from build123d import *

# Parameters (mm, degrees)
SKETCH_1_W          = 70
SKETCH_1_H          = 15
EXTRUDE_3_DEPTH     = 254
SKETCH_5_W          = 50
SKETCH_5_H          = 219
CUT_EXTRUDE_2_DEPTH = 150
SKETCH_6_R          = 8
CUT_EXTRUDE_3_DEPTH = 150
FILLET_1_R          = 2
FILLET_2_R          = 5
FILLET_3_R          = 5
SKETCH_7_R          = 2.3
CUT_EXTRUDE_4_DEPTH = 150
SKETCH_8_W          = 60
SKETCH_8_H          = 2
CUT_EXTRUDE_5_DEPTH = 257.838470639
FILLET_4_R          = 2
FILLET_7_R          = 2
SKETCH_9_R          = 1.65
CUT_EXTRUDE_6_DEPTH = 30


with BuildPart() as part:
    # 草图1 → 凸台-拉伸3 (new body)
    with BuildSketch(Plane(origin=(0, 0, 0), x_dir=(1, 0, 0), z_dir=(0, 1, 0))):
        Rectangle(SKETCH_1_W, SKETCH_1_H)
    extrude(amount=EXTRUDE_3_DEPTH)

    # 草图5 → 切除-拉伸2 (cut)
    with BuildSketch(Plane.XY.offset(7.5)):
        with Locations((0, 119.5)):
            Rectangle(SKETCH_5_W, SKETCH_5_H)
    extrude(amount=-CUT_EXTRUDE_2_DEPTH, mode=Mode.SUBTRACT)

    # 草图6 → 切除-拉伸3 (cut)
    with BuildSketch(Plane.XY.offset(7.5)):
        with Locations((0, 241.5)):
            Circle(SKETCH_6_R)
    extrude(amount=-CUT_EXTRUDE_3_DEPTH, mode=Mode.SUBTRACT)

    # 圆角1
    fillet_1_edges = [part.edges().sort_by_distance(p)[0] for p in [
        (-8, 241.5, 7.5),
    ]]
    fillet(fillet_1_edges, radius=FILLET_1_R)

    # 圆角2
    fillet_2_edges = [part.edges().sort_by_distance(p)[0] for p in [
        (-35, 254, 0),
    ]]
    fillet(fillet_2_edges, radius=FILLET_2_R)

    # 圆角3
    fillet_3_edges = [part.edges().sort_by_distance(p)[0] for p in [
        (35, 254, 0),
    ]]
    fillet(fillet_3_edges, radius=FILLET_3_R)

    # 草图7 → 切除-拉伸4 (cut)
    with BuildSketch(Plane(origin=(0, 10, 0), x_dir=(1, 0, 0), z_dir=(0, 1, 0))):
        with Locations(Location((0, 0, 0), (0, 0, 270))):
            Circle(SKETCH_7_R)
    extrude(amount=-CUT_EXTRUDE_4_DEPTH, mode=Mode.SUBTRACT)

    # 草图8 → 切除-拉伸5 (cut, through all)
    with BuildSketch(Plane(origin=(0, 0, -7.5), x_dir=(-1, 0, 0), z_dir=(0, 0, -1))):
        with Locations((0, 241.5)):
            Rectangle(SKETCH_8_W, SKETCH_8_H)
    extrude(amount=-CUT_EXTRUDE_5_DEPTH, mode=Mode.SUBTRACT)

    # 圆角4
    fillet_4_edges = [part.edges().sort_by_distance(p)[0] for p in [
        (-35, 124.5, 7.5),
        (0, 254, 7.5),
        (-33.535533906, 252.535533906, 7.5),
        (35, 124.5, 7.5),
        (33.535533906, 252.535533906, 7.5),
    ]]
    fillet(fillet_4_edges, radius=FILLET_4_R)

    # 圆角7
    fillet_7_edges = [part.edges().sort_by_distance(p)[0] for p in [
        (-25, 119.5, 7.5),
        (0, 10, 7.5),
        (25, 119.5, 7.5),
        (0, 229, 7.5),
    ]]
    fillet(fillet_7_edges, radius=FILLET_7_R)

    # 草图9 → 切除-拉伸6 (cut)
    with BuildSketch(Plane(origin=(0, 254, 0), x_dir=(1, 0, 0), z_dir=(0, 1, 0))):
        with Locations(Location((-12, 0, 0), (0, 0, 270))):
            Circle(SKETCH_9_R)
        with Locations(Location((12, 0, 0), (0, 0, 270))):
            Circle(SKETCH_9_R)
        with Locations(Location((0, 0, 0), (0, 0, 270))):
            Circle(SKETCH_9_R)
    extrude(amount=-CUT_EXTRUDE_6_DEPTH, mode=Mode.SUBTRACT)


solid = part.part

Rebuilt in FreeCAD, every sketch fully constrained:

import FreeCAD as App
import Part
import Sketcher


def edges_at(feature, points):
    """Names of the edges that pass closest to the given points."""
    edges = feature.Shape.Edges
    near = lambda p: min(range(len(edges)), key=lambda i: edges[i].distToShape(Part.Vertex(*p))[0])
    return sorted({f"Edge{near(p) + 1}" for p in points})

doc = App.newDocument("Part")
params = doc.addObject("Spreadsheet::Sheet", "Params")
for row, (alias, value) in enumerate([
    ("sketch1_width", "70 mm"),
    ("sketch1_height", "15 mm"),
    ("pad1_length", "254 mm"),
    ("sketch2_width", "50 mm"),
    ("sketch2_height", "219 mm"),
    ("pocket1_length", "150 mm"),
    ("sketch3_diameter", "16 mm"),
    ("pocket2_length", "150 mm"),
    ("fillet_radius", "2 mm"),
    ("fillet2_radius", "5 mm"),
    ("fillet3_radius", "5 mm"),
    ("sketch4_diameter", "4.6 mm"),
    ("pocket3_length", "150 mm"),
    ("sketch5_width", "60 mm"),
    ("sketch5_height", "2 mm"),
    ("fillet4_radius", "2 mm"),
    ("fillet5_radius", "2 mm"),
    ("sketch6_diameter", "3.3 mm"),
    ("pocket5_length", "30 mm"),
], start=1):
    params.set(f"A{row}", alias)
    params.set(f"B{row}", "=" + value)
    params.setAlias(f"B{row}", alias)

body = doc.addObject("PartDesign::Body", "Body")

sketch1 = body.newObject("Sketcher::SketchObject", "Sketch")
sketch1.AttachmentSupport = (doc.getObject("XZ_Plane"), [""])
sketch1.MapMode = "FlatFace"
sketch1.addGeometry(Part.LineSegment(App.Vector(-35, -7.5, 0), App.Vector(-35, 7.5, 0)), False)
sketch1.addGeometry(Part.LineSegment(App.Vector(-35, 7.5, 0), App.Vector(35, 7.5, 0)), False)
sketch1.addGeometry(Part.LineSegment(App.Vector(35, 7.5, 0), App.Vector(35, -7.5, 0)), False)
sketch1.addGeometry(Part.LineSegment(App.Vector(35, -7.5, 0), App.Vector(-35, -7.5, 0)), False)
sketch1.addConstraint(Sketcher.Constraint("Coincident", 0, 2, 1, 1))
sketch1.addConstraint(Sketcher.Constraint("Coincident", 1, 2, 2, 1))
sketch1.addConstraint(Sketcher.Constraint("Coincident", 2, 2, 3, 1))
sketch1.addConstraint(Sketcher.Constraint("Coincident", 3, 2, 0, 1))
sketch1.addConstraint(Sketcher.Constraint("Vertical", 0))
sketch1.addConstraint(Sketcher.Constraint("Horizontal", 1))
sketch1.addConstraint(Sketcher.Constraint("Vertical", 2))
sketch1.addConstraint(Sketcher.Constraint("Horizontal", 3))
sketch1.addConstraint(Sketcher.Constraint("Symmetric", 0, 2, 2, 2, -1, 1))
sketch1.addConstraint(Sketcher.Constraint("DistanceX", 1, 1, 1, 2, 70.0))
sketch1.addConstraint(Sketcher.Constraint("DistanceY", 0, 1, 0, 2, 15.0))
sketch1.setExpression("Constraints[9]", "Params.sketch1_width")
sketch1.setExpression("Constraints[10]", "Params.sketch1_height")
pad1 = body.newObject("PartDesign::Pad", "Pad")
pad1.Profile = sketch1
pad1.setExpression("Length", "Params.pad1_length")
pad1.Reversed = True

sketch2 = body.newObject("Sketcher::SketchObject", "Sketch001")
sketch2.AttachmentSupport = (doc.getObject("XY_Plane"), [""])
sketch2.MapMode = "FlatFace"
sketch2.AttachmentOffset = App.Placement(App.Vector(0, 0, 7.5), App.Rotation())
sketch2.addGeometry(Part.LineSegment(App.Vector(-25, 229, 0), App.Vector(-25, 10, 0)), False)
sketch2.addGeometry(Part.LineSegment(App.Vector(-25, 10, 0), App.Vector(25, 10, 0)), False)
sketch2.addGeometry(Part.LineSegment(App.Vector(25, 10, 0), App.Vector(25, 229, 0)), False)
sketch2.addGeometry(Part.LineSegment(App.Vector(25, 229, 0), App.Vector(-25, 229, 0)), False)
sketch2.addConstraint(Sketcher.Constraint("Coincident", 0, 2, 1, 1))
sketch2.addConstraint(Sketcher.Constraint("Coincident", 1, 2, 2, 1))
sketch2.addConstraint(Sketcher.Constraint("Coincident", 2, 2, 3, 1))
sketch2.addConstraint(Sketcher.Constraint("Coincident", 3, 2, 0, 1))
sketch2.addConstraint(Sketcher.Constraint("Vertical", 0))
sketch2.addConstraint(Sketcher.Constraint("Horizontal", 1))
sketch2.addConstraint(Sketcher.Constraint("Vertical", 2))
sketch2.addConstraint(Sketcher.Constraint("Horizontal", 3))
sketch2.addConstraint(Sketcher.Constraint("DistanceX", 1, 1, 1, 2, 50.0))
sketch2.addConstraint(Sketcher.Constraint("DistanceY", 0, 2, 0, 1, 219.0))
sketch2.addConstraint(Sketcher.Constraint("DistanceX", 0, 2, -1, 1, 25.0))
sketch2.addConstraint(Sketcher.Constraint("DistanceY", -1, 1, 0, 2, 10.0))
sketch2.setExpression("Constraints[8]", "Params.sketch2_width")
sketch2.setExpression("Constraints[9]", "Params.sketch2_height")
pocket1 = body.newObject("PartDesign::Pocket", "Pocket")
pocket1.Profile = sketch2
pocket1.setExpression("Length", "Params.pocket1_length")

sketch3 = body.newObject("Sketcher::SketchObject", "Sketch002")
sketch3.AttachmentSupport = (doc.getObject("XY_Plane"), [""])
sketch3.MapMode = "FlatFace"
sketch3.AttachmentOffset = App.Placement(App.Vector(0, 0, 7.5), App.Rotation())
sketch3.addGeometry(Part.Circle(App.Vector(0, 241.5, 0), App.Vector(0, 0, 1), 8), False)
sketch3.addConstraint(Sketcher.Constraint("PointOnObject", 0, 3, -2))
sketch3.addConstraint(Sketcher.Constraint("Diameter", 0, 16.0))
sketch3.addConstraint(Sketcher.Constraint("DistanceY", -1, 1, 0, 3, 241.5))
sketch3.setExpression("Constraints[1]", "Params.sketch3_diameter")
pocket2 = body.newObject("PartDesign::Pocket", "Pocket001")
pocket2.Profile = sketch3
pocket2.setExpression("Length", "Params.pocket2_length")
doc.recompute()

fillet = body.newObject("PartDesign::Fillet", "Fillet")
fillet.Base = (pocket2, edges_at(pocket2, [(-8, 241.5, 7.5)]))
fillet.setExpression("Radius", "Params.fillet_radius")
doc.recompute()

fillet2 = body.newObject("PartDesign::Fillet", "Fillet001")
fillet2.Base = (fillet, edges_at(fillet, [(-35, 254, 0)]))
fillet2.setExpression("Radius", "Params.fillet2_radius")
doc.recompute()

fillet3 = body.newObject("PartDesign::Fillet", "Fillet002")
fillet3.Base = (fillet2, edges_at(fillet2, [(35, 254, 0)]))
fillet3.setExpression("Radius", "Params.fillet3_radius")

sketch4 = body.newObject("Sketcher::SketchObject", "Sketch003")
sketch4.AttachmentSupport = (doc.getObject("XZ_Plane"), [""])
sketch4.MapMode = "FlatFace"
sketch4.AttachmentOffset = App.Placement(App.Vector(0, 0, -10), App.Rotation())
sketch4.addGeometry(Part.Circle(App.Vector(0, 0, 0), App.Vector(0, 0, 1), 2.3), False)
sketch4.addConstraint(Sketcher.Constraint("Coincident", 0, 3, -1, 1))
sketch4.addConstraint(Sketcher.Constraint("Diameter", 0, 4.6))
sketch4.setExpression("Constraints[1]", "Params.sketch4_diameter")
pocket3 = body.newObject("PartDesign::Pocket", "Pocket002")
pocket3.Profile = sketch4
pocket3.setExpression("Length", "Params.pocket3_length")
pocket3.Reversed = True

sketch5 = body.newObject("Sketcher::SketchObject", "Sketch004")
sketch5.AttachmentSupport = (doc.getObject("XY_Plane"), [""])
sketch5.MapMode = "FlatFace"
sketch5.AttachmentOffset = App.Placement(App.Vector(0, 0, -7.5), App.Rotation())
sketch5.addGeometry(Part.LineSegment(App.Vector(30, 242.5, 0), App.Vector(30, 240.5, 0)), False)
sketch5.addGeometry(Part.LineSegment(App.Vector(30, 240.5, 0), App.Vector(-30, 240.5, 0)), False)
sketch5.addGeometry(Part.LineSegment(App.Vector(-30, 240.5, 0), App.Vector(-30, 242.5, 0)), False)
sketch5.addGeometry(Part.LineSegment(App.Vector(-30, 242.5, 0), App.Vector(30, 242.5, 0)), False)
sketch5.addConstraint(Sketcher.Constraint("Coincident", 0, 2, 1, 1))
sketch5.addConstraint(Sketcher.Constraint("Coincident", 1, 2, 2, 1))
sketch5.addConstraint(Sketcher.Constraint("Coincident", 2, 2, 3, 1))
sketch5.addConstraint(Sketcher.Constraint("Coincident", 3, 2, 0, 1))
sketch5.addConstraint(Sketcher.Constraint("Vertical", 0))
sketch5.addConstraint(Sketcher.Constraint("Horizontal", 1))
sketch5.addConstraint(Sketcher.Constraint("Vertical", 2))
sketch5.addConstraint(Sketcher.Constraint("Horizontal", 3))
sketch5.addConstraint(Sketcher.Constraint("DistanceX", 1, 2, 1, 1, 60.0))
sketch5.addConstraint(Sketcher.Constraint("DistanceY", 0, 2, 0, 1, 2.0))
sketch5.addConstraint(Sketcher.Constraint("DistanceX", -1, 1, 0, 2, 30.0))
sketch5.addConstraint(Sketcher.Constraint("DistanceY", -1, 1, 0, 2, 240.5))
sketch5.setExpression("Constraints[8]", "Params.sketch5_width")
sketch5.setExpression("Constraints[9]", "Params.sketch5_height")
pocket4 = body.newObject("PartDesign::Pocket", "Pocket003")
pocket4.Profile = sketch5
pocket4.Type = "ThroughAll"
pocket4.Reversed = True
doc.recompute()

fillet4 = body.newObject("PartDesign::Fillet", "Fillet003")
fillet4.Base = (pocket4, edges_at(pocket4, [
    (-35, 124.5, 7.5),
    (0, 254, 7.5),
    (-33.536, 252.536, 7.5),
    (35, 124.5, 7.5),
    (33.536, 252.536, 7.5),
]))
fillet4.setExpression("Radius", "Params.fillet4_radius")
doc.recompute()

fillet5 = body.newObject("PartDesign::Fillet", "Fillet004")
fillet5.Base = (fillet4, edges_at(fillet4, [
    (-25, 119.5, 7.5),
    (0, 10, 7.5),
    (25, 119.5, 7.5),
    (0, 229, 7.5),
]))
fillet5.setExpression("Radius", "Params.fillet5_radius")

sketch6 = body.newObject("Sketcher::SketchObject", "Sketch005")
sketch6.AttachmentSupport = (doc.getObject("XZ_Plane"), [""])
sketch6.MapMode = "FlatFace"
sketch6.AttachmentOffset = App.Placement(App.Vector(0, 0, -254), App.Rotation())
sketch6.addGeometry(Part.Circle(App.Vector(-12, 0, 0), App.Vector(0, 0, 1), 1.65), False)
sketch6.addGeometry(Part.Circle(App.Vector(12, 0, 0), App.Vector(0, 0, 1), 1.65), False)
sketch6.addGeometry(Part.Circle(App.Vector(0, 0, 0), App.Vector(0, 0, 1), 1.65), False)
sketch6.addConstraint(Sketcher.Constraint("Coincident", 2, 3, -1, 1))
sketch6.addConstraint(Sketcher.Constraint("Equal", 0, 1))
sketch6.addConstraint(Sketcher.Constraint("Equal", 1, 2))
sketch6.addConstraint(Sketcher.Constraint("Symmetric", 0, 3, 1, 3, -1, 1))
sketch6.addConstraint(Sketcher.Constraint("PointOnObject", 0, 3, -1))
sketch6.addConstraint(Sketcher.Constraint("Diameter", 0, 3.3))
sketch6.addConstraint(Sketcher.Constraint("DistanceX", 0, 3, -1, 1, 12.0))
sketch6.setExpression("Constraints[5]", "Params.sketch6_diameter")
pocket5 = body.newObject("PartDesign::Pocket", "Pocket004")
pocket5.Profile = sketch6
pocket5.setExpression("Length", "Params.pocket5_length")
pocket5.Reversed = True

doc.recompute()
